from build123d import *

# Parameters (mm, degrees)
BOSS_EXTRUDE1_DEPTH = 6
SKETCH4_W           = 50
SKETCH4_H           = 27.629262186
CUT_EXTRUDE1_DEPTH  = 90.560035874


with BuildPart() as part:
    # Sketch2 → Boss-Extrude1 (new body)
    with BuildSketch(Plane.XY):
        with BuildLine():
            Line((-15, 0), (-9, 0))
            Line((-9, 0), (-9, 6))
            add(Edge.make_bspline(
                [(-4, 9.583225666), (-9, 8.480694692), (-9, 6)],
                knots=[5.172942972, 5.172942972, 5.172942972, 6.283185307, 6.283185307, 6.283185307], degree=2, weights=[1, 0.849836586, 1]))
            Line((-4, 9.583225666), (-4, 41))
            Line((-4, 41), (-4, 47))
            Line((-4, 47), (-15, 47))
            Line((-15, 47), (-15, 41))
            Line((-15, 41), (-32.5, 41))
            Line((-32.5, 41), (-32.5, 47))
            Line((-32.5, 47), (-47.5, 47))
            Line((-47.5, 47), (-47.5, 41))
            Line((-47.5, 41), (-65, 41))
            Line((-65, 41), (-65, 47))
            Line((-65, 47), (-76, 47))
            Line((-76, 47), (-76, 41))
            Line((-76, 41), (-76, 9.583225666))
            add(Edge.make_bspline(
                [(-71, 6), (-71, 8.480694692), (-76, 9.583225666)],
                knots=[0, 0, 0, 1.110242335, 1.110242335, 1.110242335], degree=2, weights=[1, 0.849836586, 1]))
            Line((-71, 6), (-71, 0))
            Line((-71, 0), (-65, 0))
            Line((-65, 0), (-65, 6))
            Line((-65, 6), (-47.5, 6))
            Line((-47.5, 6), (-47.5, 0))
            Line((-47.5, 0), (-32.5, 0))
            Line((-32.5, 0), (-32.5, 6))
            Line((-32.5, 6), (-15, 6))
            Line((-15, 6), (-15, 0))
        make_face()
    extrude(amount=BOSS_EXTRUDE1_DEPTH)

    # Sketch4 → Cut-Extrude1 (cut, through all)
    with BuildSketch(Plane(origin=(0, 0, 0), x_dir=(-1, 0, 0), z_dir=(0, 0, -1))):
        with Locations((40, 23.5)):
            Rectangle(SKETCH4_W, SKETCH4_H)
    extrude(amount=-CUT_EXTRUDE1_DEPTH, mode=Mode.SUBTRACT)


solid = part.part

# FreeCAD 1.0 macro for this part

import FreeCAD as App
import Part
import Sketcher


def add_polygon(sketch, points):
    """Adds a closed chain of lines whose ends are joined by coincident constraints."""
    first, n = sketch.GeometryCount, len(points)
    for a, b in zip(points, points[1:] + points[:1]):
        sketch.addGeometry(Part.LineSegment(App.Vector(*a, 0), App.Vector(*b, 0)), False)
    for i in range(n):
        sketch.addConstraint(Sketcher.Constraint("Coincident", first + i, 2, first + (i + 1) % n, 1))

doc = App.newDocument("Part")
body = doc.addObject("PartDesign::Body", "Body")

# Sketch on XY plane
sketch1 = body.newObject("Sketcher::SketchObject", "Sketch")
sketch1.AttachmentSupport = (doc.getObject("XY_Plane"), [""])
sketch1.MapMode = "FlatFace"
sketch1.addGeometry([
    Part.LineSegment(App.Vector(-15, 0, 0), App.Vector(-9, 0, 0)),  # 0
    Part.LineSegment(App.Vector(-9, 0, 0), App.Vector(-9, 6, 0)),  # 1
    Part.BSplineCurve([App.Vector(-4, 9.583226, 0), App.Vector(-9, 8.480695, 0), App.Vector(-9, 6, 0)], [3, 3], [5.172942972, 6.283185307], False, 2, [1, 0.849836586, 1], False),  # 2
    Part.LineSegment(App.Vector(-4, 9.583226, 0), App.Vector(-4, 47, 0)),  # 3
    Part.LineSegment(App.Vector(-4, 47, 0), App.Vector(-15, 47, 0)),  # 4
    Part.LineSegment(App.Vector(-15, 47, 0), App.Vector(-15, 41, 0)),  # 5
    Part.LineSegment(App.Vector(-15, 41, 0), App.Vector(-32.5, 41, 0)),  # 6
    Part.LineSegment(App.Vector(-32.5, 41, 0), App.Vector(-32.5, 47, 0)),  # 7
    Part.LineSegment(App.Vector(-32.5, 47, 0), App.Vector(-47.5, 47, 0)),  # 8
    Part.LineSegment(App.Vector(-47.5, 47, 0), App.Vector(-47.5, 41, 0)),  # 9
    Part.LineSegment(App.Vector(-47.5, 41, 0), App.Vector(-65, 41, 0)),  # 10
    Part.LineSegment(App.Vector(-65, 41, 0), App.Vector(-65, 47, 0)),  # 11
    Part.LineSegment(App.Vector(-65, 47, 0), App.Vector(-76, 47, 0)),  # 12
    Part.LineSegment(App.Vector(-76, 47, 0), App.Vector(-76, 9.583226, 0)),  # 13
    Part.BSplineCurve([App.Vector(-71, 6, 0), App.Vector(-71, 8.480695, 0), App.Vector(-76, 9.583226, 0)], [3, 3], [0, 1.110242335], False, 2, [1, 0.849836586, 1], False),  # 14
    Part.LineSegment(App.Vector(-71, 6, 0), App.Vector(-71, 0, 0)),  # 15
    Part.LineSegment(App.Vector(-71, 0, 0), App.Vector(-65, 0, 0)),  # 16
    Part.LineSegment(App.Vector(-65, 0, 0), App.Vector(-65, 6, 0)),  # 17
    Part.LineSegment(App.Vector(-65, 6, 0), App.Vector(-47.5, 6, 0)),  # 18
    Part.LineSegment(App.Vector(-47.5, 6, 0), App.Vector(-47.5, 0, 0)),  # 19
    Part.LineSegment(App.Vector(-47.5, 0, 0), App.Vector(-32.5, 0, 0)),  # 20
    Part.LineSegment(App.Vector(-32.5, 0, 0), App.Vector(-32.5, 6, 0)),  # 21
    Part.LineSegment(App.Vector(-32.5, 6, 0), App.Vector(-15, 6, 0)),  # 22
    Part.LineSegment(App.Vector(-15, 6, 0), App.Vector(-15, 0, 0)),  # 23
], False)
sketch1.addConstraint([
    Sketcher.Constraint("Block", 2),
    Sketcher.Constraint("Block", 14),
    Sketcher.Constraint("Coincident", 0, 2, 1, 1),
    Sketcher.Constraint("Coincident", 1, 2, 2, 2),
    Sketcher.Constraint("Coincident", 2, 1, 3, 1),
    Sketcher.Constraint("Coincident", 3, 2, 4, 1),
    Sketcher.Constraint("Coincident", 4, 2, 5, 1),
    Sketcher.Constraint("Coincident", 5, 2, 6, 1),
    Sketcher.Constraint("Coincident", 6, 2, 7, 1),
    Sketcher.Constraint("Coincident", 7, 2, 8, 1),
    Sketcher.Constraint("Coincident", 8, 2, 9, 1),
    Sketcher.Constraint("Coincident", 9, 2, 10, 1),
    Sketcher.Constraint("Coincident", 10, 2, 11, 1),
    Sketcher.Constraint("Coincident", 11, 2, 12, 1),
    Sketcher.Constraint("Coincident", 12, 2, 13, 1),
    Sketcher.Constraint("Coincident", 13, 2, 14, 2),
    Sketcher.Constraint("Coincident", 14, 1, 15, 1),
    Sketcher.Constraint("Coincident", 15, 2, 16, 1),
    Sketcher.Constraint("Coincident", 16, 2, 17, 1),
    Sketcher.Constraint("Coincident", 17, 2, 18, 1),
    Sketcher.Constraint("Coincident", 18, 2, 19, 1),
    Sketcher.Constraint("Coincident", 19, 2, 20, 1),
    Sketcher.Constraint("Coincident", 20, 2, 21, 1),
    Sketcher.Constraint("Coincident", 21, 2, 22, 1),
    Sketcher.Constraint("Coincident", 22, 2, 23, 1),
    Sketcher.Constraint("Coincident", 23, 2, 0, 1),
    Sketcher.Constraint("Horizontal", 0),
    Sketcher.Constraint("Vertical", 1),
    Sketcher.Constraint("Vertical", 3),
    Sketcher.Constraint("Horizontal", 4),
    Sketcher.Constraint("Vertical", 5),
    Sketcher.Constraint("Horizontal", 6),
    Sketcher.Constraint("Vertical", 7),
    Sketcher.Constraint("Horizontal", 8),
    Sketcher.Constraint("Vertical", 9),
    Sketcher.Constraint("Horizontal", 10),
    Sketcher.Constraint("Vertical", 11),
    Sketcher.Constraint("Horizontal", 12),
    Sketcher.Constraint("Vertical", 13),
    Sketcher.Constraint("Vertical", 15),
    Sketcher.Constraint("Horizontal", 16),
    Sketcher.Constraint("Vertical", 17),
    Sketcher.Constraint("Horizontal", 18),
    Sketcher.Constraint("Vertical", 19),
    Sketcher.Constraint("Horizontal", 20),
    Sketcher.Constraint("Vertical", 21),
    Sketcher.Constraint("Horizontal", 22),
    Sketcher.Constraint("Vertical", 23),
    Sketcher.Constraint("PointOnObject", 0, 2, -1),
    Sketcher.Constraint("PointOnObject", 15, 2, -1),
    Sketcher.Constraint("PointOnObject", 19, 2, -1),
    Sketcher.Constraint("DistanceX", 0, 1, 0, 2, 6.0),
    Sketcher.Constraint("DistanceX", 4, 2, 4, 1, 11.0),
    Sketcher.Constraint("DistanceX", 8, 2, 8, 1, 15.0),
    Sketcher.Constraint("DistanceX", 12, 2, 12, 1, 11.0),
    Sketcher.Constraint("DistanceX", 16, 1, 16, 2, 6.0),
    Sketcher.Constraint("DistanceX", 20, 1, 20, 2, 15.0),
    Sketcher.Constraint("DistanceY", 5, 2, 5, 1, 6.0),
    Sketcher.Constraint("DistanceY", 7, 1, 7, 2, 6.0),
    Sketcher.Constraint("DistanceY", 9, 2, 9, 1, 6.0),
    Sketcher.Constraint("DistanceY", 11, 1, 11, 2, 6.0),
    Sketcher.Constraint("DistanceY", 17, 1, 17, 2, 6.0),
    Sketcher.Constraint("DistanceY", 21, 1, 21, 2, 6.0),
    Sketcher.Constraint("DistanceX", 6, 2, 6, 1, 17.5),
    Sketcher.Constraint("DistanceX", 18, 1, 18, 2, 17.5),
    Sketcher.Constraint("DistanceY", -1, 1, 3, 2, 47.0),
])
pad1 = body.newObject("PartDesign::Pad", "Pad")
pad1.Profile = sketch1
pad1.Length = 6

# Sketch on XY plane
sketch2 = body.newObject("Sketcher::SketchObject", "Sketch001")
sketch2.AttachmentSupport = (doc.getObject("XY_Plane"), [""])
sketch2.MapMode = "FlatFace"
add_polygon(sketch2, [(-15, 37.314631), (-15, 9.685369), (-65, 9.685369), (-65, 37.314631)])  # lines 0-3
sketch2.addConstraint([
    Sketcher.Constraint("Vertical", 0),
    Sketcher.Constraint("Horizontal", 1),
    Sketcher.Constraint("Vertical", 2),
    Sketcher.Constraint("Horizontal", 3),
    Sketcher.Constraint("DistanceX", 1, 2, 1, 1, 50.0),
    Sketcher.Constraint("DistanceX", 0, 2, -1, 1, 15.0),
    Sketcher.Constraint("DistanceY", 0, 2, 0, 1, 27.629262),
    Sketcher.Constraint("DistanceY", -1, 1, 0, 2, 9.685369),
])
pocket1 = body.newObject("PartDesign::Pocket", "Pocket")
pocket1.Profile = sketch2
pocket1.Type = "ThroughAll"
pocket1.Reversed = True

doc.recompute()
